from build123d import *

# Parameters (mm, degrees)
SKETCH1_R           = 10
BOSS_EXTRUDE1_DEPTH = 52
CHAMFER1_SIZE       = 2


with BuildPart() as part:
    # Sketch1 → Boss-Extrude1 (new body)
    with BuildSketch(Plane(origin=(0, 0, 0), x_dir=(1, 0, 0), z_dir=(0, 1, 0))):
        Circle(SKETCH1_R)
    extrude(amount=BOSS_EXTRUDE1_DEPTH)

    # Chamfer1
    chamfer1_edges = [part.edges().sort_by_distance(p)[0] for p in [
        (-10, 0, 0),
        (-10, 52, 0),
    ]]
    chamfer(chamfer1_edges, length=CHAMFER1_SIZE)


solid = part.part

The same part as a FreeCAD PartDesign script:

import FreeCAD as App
import Part
import Sketcher

V = App.Vector


def edges_at(feature, points):
    """Names of the edges that pass closest to the given points."""
    edges = feature.Shape.Edges
    near = lambda p: min(range(len(edges)), key=lambda i: edges[i].distToShape(Part.Vertex(*p))[0])
    return sorted({f"Edge{near(p) + 1}" for p in points})

doc = App.newDocument("Part")
body = doc.addObject("PartDesign::Body", "Body")

# Sketch on XZ plane
sketch1 = body.newObject("Sketcher::SketchObject", "Sketch")
sketch1.AttachmentSupport = (doc.getObject("XZ_Plane"), [""])
sketch1.MapMode = "FlatFace"
sketch1.addGeometry(Part.Circle(V(0, 0, 0), V(0, 0, 1), 10), False)
sketch1.addConstraint([
    Sketcher.Constraint("Coincident", 0, 3, -1, 1),
    Sketcher.Constraint("Diameter", 0, 20.0),
])
pad1 = body.newObject("PartDesign::Pad", "Pad")
pad1.Profile = sketch1
pad1.Length = 52
pad1.Reversed = True
doc.recompute()

chamfer = body.newObject("PartDesign::Chamfer", "Chamfer")
chamfer.Base = (pad1, edges_at(pad1, [(-10, 0, 0), (-10, 52, 0)]))
chamfer.Size = 2

doc.recompute()
